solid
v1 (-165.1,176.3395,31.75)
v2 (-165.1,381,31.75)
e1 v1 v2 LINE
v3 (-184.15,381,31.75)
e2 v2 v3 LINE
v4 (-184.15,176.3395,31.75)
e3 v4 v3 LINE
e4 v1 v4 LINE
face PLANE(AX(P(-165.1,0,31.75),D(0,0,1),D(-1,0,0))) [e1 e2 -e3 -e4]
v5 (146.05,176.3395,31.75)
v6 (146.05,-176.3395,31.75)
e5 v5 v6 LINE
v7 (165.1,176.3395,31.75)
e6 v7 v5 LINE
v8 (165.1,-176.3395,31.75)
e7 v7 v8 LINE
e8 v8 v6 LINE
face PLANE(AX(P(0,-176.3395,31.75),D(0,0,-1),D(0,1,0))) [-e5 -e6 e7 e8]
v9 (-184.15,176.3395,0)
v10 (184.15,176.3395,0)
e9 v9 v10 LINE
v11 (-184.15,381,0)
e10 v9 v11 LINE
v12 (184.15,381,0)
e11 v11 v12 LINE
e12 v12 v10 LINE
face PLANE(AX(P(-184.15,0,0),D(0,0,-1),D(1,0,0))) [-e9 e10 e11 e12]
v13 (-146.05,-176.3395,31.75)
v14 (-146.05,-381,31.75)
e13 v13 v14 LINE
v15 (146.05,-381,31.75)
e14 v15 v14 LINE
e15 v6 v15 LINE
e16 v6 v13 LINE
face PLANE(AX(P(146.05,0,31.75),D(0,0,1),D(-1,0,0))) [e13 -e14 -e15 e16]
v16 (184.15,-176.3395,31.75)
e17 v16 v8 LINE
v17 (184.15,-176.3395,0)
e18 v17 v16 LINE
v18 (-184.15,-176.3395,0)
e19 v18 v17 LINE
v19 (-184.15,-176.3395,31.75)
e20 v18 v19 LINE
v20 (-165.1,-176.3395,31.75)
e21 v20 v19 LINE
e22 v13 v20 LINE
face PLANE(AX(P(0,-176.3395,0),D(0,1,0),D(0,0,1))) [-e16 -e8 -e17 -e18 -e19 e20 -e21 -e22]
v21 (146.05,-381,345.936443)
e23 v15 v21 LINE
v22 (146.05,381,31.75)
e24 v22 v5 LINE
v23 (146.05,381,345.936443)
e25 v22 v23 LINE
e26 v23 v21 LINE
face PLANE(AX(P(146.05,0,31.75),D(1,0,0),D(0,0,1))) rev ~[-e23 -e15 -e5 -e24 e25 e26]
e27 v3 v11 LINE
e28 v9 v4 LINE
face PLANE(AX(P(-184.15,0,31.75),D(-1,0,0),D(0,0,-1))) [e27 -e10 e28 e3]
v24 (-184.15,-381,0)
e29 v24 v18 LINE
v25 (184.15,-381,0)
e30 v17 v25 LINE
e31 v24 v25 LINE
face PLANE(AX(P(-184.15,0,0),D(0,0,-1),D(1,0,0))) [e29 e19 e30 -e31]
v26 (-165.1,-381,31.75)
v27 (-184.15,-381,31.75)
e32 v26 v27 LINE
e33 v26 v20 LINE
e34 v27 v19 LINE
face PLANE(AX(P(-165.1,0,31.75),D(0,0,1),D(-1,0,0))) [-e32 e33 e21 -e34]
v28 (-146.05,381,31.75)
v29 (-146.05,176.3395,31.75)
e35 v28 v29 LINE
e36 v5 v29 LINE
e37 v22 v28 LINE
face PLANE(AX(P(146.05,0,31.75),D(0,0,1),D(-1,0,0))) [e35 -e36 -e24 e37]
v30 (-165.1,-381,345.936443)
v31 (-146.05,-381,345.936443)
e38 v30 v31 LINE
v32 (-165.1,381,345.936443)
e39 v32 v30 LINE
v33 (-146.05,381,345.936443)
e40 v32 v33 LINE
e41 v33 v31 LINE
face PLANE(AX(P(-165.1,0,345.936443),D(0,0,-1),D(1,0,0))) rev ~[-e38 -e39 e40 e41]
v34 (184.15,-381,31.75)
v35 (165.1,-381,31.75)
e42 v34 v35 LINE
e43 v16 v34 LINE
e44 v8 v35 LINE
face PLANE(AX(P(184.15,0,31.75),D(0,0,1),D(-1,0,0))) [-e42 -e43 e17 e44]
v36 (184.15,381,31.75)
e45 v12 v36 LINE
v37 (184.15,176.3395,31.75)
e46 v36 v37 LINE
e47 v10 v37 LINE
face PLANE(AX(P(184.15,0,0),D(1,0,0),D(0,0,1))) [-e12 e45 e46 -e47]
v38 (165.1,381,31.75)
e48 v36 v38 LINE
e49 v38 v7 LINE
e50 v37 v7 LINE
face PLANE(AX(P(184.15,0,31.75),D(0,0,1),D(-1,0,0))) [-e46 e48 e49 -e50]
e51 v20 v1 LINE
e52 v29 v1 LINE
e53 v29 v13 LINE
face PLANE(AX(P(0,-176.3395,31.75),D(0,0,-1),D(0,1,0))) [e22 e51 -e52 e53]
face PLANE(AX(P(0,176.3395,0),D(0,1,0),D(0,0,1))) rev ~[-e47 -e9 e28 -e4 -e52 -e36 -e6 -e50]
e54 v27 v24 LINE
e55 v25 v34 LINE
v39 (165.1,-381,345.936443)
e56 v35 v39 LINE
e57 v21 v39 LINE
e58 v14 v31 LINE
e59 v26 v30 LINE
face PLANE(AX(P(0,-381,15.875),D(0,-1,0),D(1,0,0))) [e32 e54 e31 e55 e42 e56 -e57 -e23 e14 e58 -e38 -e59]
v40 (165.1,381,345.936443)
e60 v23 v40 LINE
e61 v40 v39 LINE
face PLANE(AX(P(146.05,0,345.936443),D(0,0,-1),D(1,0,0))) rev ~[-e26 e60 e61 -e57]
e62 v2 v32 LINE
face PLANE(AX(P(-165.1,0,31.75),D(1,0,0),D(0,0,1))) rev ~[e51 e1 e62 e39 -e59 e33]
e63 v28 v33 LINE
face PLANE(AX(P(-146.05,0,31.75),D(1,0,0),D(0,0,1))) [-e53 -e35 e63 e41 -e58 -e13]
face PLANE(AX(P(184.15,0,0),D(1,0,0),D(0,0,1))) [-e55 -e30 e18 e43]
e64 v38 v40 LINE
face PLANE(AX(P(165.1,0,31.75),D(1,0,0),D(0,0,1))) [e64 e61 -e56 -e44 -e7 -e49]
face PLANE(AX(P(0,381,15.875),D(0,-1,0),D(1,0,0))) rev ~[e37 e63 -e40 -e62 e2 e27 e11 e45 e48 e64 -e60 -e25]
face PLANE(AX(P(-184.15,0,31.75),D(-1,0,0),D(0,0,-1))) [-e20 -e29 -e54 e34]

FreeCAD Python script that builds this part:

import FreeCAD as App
import Part
import Sketcher
Q = App.Units.Quantity

doc = App.newDocument("Part")
params = doc.addObject("Spreadsheet::Sheet", "Params")
for row, (alias, value) in enumerate([
    ("sketch1_width", "14.5 in"),
    ("sketch1_width2", "11.5 in"),
    ("sketch1_height", "1.25 in"),
    ("pad1_length", "30 in"),
    ("sketch2_height", "1.25 in"),
    ("sketch2_width", "13.885 in"),
    ("pocket1_length", "14.5 in"),
], start=1):
    params.set(f"A{row}", alias)
    params.set(f"B{row}", "=" + value)
    params.setAlias(f"B{row}", alias)

body = doc.addObject("PartDesign::Body", "Body")

sketch1 = body.newObject("Sketcher::SketchObject", "Sketch")
sketch1.AttachmentSupport = (doc.getObject("XZ_Plane"), [""])
sketch1.MapMode = "FlatFace"
sketch1.addGeometry([
    Part.LineSegment(App.Vector(-184.15, 0, 0), App.Vector(184.15, 0, 0)),
    Part.LineSegment(App.Vector(184.15, 0, 0), App.Vector(184.15, 31.75, 0)),
    Part.LineSegment(App.Vector(184.15, 31.75, 0), App.Vector(165.1, 31.75, 0)),
    Part.LineSegment(App.Vector(165.1, 31.75, 0), App.Vector(165.1, 345.936443, 0)),
    Part.LineSegment(App.Vector(165.1, 345.936443, 0), App.Vector(146.05, 345.936443, 0)),
    Part.LineSegment(App.Vector(146.05, 345.936443, 0), App.Vector(146.05, 31.75, 0)),
    Part.LineSegment(App.Vector(146.05, 31.75, 0), App.Vector(-146.05, 31.75, 0)),
    Part.LineSegment(App.Vector(-146.05, 31.75, 0), App.Vector(-146.05, 345.936443, 0)),
    Part.LineSegment(App.Vector(-146.05, 345.936443, 0), App.Vector(-165.1, 345.936443, 0)),
    Part.LineSegment(App.Vector(-165.1, 345.936443, 0), App.Vector(-165.1, 31.75, 0)),
    Part.LineSegment(App.Vector(-165.1, 31.75, 0), App.Vector(-184.15, 31.75, 0)),
    Part.LineSegment(App.Vector(-184.15, 31.75, 0), App.Vector(-184.15, 0, 0)),
], False)
sketch1.addConstraint([
    Sketcher.Constraint("Coincident", 0, 2, 1, 1),
    Sketcher.Constraint("Coincident", 1, 2, 2, 1),
    Sketcher.Constraint("Coincident", 2, 2, 3, 1),
    Sketcher.Constraint("Coincident", 3, 2, 4, 1),
    Sketcher.Constraint("Coincident", 4, 2, 5, 1),
    Sketcher.Constraint("Coincident", 5, 2, 6, 1),
    Sketcher.Constraint("Coincident", 6, 2, 7, 1),
    Sketcher.Constraint("Coincident", 7, 2, 8, 1),
    Sketcher.Constraint("Coincident", 8, 2, 9, 1),
    Sketcher.Constraint("Coincident", 9, 2, 10, 1),
    Sketcher.Constraint("Coincident", 10, 2, 11, 1),
    Sketcher.Constraint("Coincident", 11, 2, 0, 1),
    Sketcher.Constraint("Horizontal", 0),
    Sketcher.Constraint("Vertical", 1),
    Sketcher.Constraint("Horizontal", 2),
    Sketcher.Constraint("Vertical", 3),
    Sketcher.Constraint("Horizontal", 4),
    Sketcher.Constraint("Vertical", 5),
    Sketcher.Constraint("Horizontal", 6),
    Sketcher.Constraint("Vertical", 7),
    Sketcher.Constraint("Horizontal", 8),
    Sketcher.Constraint("Vertical", 9),
    Sketcher.Constraint("Horizontal", 10),
    Sketcher.Constraint("Vertical", 11),
    Sketcher.Constraint("Symmetric", 0, 2, 11, 2, -1, 1),
    Sketcher.Constraint("Symmetric", 4, 2, 7, 2, -2),
    Sketcher.Constraint("Symmetric", 2, 2, 9, 2, -2),
    Sketcher.Constraint("Horizontal", 2, 2, 5, 2),
    Sketcher.Constraint("Equal", 2, 4),
    Sketcher.Constraint("DistanceX", 0, 1, 0, 2, Q("14.5 in")),
    Sketcher.Constraint("DistanceX", 6, 2, 6, 1, Q("11.5 in")),
    Sketcher.Constraint("DistanceY", 1, 1, 1, 2, Q("1.25 in")),
    Sketcher.Constraint("DistanceY", 3, 1, 3, 2, Q("314.186443 mm")),
])
sketch1.setExpression("Constraints[29]", "Params.sketch1_width")
sketch1.setExpression("Constraints[30]", "Params.sketch1_width2")
sketch1.setExpression("Constraints[31]", "Params.sketch1_height")
pad1 = body.newObject("PartDesign::Pad", "Pad")
pad1.Profile = sketch1
pad1.setExpression("Length", "Params.pad1_length")
pad1.Midplane = True

sketch2 = body.newObject("Sketcher::SketchObject", "Sketch001")
sketch2.AttachmentSupport = (doc.getObject("YZ_Plane"), [""])
sketch2.MapMode = "FlatFace"
sketch2.addGeometry([
    Part.LineSegment(App.Vector(-176.3395, 31.75, 0), App.Vector(-176.3395, 0, 0)),
    Part.LineSegment(App.Vector(-176.3395, 0, 0), App.Vector(176.3395, 0, 0)),
    Part.LineSegment(App.Vector(176.3395, 0, 0), App.Vector(176.3395, 31.75, 0)),
    Part.LineSegment(App.Vector(176.3395, 31.75, 0), App.Vector(-176.3395, 31.75, 0)),
], False)
sketch2.addConstraint([
    Sketcher.Constraint("Coincident", 0, 2, 1, 1),
    Sketcher.Constraint("Coincident", 1, 2, 2, 1),
    Sketcher.Constraint("Coincident", 2, 2, 3, 1),
    Sketcher.Constraint("Coincident", 3, 2, 0, 1),
    Sketcher.Constraint("Vertical", 0),
    Sketcher.Constraint("Horizontal", 1),
    Sketcher.Constraint("Vertical", 2),
    Sketcher.Constraint("Horizontal", 3),
    Sketcher.Constraint("Symmetric", 0, 2, 1, 2, -1, 1),
    Sketcher.Constraint("DistanceY", 0, 2, 0, 1, Q("1.25 in")),
    Sketcher.Constraint("DistanceX", 1, 1, 1, 2, Q("13.885 in")),
])
sketch2.setExpression("Constraints[9]", "Params.sketch2_height")
sketch2.setExpression("Constraints[10]", "Params.sketch2_width")
pocket1 = body.newObject("PartDesign::Pocket", "Pocket")
pocket1.Profile = sketch2
pocket1.setExpression("Length", "Params.pocket1_length")
pocket1.Midplane = True

doc.recompute()
